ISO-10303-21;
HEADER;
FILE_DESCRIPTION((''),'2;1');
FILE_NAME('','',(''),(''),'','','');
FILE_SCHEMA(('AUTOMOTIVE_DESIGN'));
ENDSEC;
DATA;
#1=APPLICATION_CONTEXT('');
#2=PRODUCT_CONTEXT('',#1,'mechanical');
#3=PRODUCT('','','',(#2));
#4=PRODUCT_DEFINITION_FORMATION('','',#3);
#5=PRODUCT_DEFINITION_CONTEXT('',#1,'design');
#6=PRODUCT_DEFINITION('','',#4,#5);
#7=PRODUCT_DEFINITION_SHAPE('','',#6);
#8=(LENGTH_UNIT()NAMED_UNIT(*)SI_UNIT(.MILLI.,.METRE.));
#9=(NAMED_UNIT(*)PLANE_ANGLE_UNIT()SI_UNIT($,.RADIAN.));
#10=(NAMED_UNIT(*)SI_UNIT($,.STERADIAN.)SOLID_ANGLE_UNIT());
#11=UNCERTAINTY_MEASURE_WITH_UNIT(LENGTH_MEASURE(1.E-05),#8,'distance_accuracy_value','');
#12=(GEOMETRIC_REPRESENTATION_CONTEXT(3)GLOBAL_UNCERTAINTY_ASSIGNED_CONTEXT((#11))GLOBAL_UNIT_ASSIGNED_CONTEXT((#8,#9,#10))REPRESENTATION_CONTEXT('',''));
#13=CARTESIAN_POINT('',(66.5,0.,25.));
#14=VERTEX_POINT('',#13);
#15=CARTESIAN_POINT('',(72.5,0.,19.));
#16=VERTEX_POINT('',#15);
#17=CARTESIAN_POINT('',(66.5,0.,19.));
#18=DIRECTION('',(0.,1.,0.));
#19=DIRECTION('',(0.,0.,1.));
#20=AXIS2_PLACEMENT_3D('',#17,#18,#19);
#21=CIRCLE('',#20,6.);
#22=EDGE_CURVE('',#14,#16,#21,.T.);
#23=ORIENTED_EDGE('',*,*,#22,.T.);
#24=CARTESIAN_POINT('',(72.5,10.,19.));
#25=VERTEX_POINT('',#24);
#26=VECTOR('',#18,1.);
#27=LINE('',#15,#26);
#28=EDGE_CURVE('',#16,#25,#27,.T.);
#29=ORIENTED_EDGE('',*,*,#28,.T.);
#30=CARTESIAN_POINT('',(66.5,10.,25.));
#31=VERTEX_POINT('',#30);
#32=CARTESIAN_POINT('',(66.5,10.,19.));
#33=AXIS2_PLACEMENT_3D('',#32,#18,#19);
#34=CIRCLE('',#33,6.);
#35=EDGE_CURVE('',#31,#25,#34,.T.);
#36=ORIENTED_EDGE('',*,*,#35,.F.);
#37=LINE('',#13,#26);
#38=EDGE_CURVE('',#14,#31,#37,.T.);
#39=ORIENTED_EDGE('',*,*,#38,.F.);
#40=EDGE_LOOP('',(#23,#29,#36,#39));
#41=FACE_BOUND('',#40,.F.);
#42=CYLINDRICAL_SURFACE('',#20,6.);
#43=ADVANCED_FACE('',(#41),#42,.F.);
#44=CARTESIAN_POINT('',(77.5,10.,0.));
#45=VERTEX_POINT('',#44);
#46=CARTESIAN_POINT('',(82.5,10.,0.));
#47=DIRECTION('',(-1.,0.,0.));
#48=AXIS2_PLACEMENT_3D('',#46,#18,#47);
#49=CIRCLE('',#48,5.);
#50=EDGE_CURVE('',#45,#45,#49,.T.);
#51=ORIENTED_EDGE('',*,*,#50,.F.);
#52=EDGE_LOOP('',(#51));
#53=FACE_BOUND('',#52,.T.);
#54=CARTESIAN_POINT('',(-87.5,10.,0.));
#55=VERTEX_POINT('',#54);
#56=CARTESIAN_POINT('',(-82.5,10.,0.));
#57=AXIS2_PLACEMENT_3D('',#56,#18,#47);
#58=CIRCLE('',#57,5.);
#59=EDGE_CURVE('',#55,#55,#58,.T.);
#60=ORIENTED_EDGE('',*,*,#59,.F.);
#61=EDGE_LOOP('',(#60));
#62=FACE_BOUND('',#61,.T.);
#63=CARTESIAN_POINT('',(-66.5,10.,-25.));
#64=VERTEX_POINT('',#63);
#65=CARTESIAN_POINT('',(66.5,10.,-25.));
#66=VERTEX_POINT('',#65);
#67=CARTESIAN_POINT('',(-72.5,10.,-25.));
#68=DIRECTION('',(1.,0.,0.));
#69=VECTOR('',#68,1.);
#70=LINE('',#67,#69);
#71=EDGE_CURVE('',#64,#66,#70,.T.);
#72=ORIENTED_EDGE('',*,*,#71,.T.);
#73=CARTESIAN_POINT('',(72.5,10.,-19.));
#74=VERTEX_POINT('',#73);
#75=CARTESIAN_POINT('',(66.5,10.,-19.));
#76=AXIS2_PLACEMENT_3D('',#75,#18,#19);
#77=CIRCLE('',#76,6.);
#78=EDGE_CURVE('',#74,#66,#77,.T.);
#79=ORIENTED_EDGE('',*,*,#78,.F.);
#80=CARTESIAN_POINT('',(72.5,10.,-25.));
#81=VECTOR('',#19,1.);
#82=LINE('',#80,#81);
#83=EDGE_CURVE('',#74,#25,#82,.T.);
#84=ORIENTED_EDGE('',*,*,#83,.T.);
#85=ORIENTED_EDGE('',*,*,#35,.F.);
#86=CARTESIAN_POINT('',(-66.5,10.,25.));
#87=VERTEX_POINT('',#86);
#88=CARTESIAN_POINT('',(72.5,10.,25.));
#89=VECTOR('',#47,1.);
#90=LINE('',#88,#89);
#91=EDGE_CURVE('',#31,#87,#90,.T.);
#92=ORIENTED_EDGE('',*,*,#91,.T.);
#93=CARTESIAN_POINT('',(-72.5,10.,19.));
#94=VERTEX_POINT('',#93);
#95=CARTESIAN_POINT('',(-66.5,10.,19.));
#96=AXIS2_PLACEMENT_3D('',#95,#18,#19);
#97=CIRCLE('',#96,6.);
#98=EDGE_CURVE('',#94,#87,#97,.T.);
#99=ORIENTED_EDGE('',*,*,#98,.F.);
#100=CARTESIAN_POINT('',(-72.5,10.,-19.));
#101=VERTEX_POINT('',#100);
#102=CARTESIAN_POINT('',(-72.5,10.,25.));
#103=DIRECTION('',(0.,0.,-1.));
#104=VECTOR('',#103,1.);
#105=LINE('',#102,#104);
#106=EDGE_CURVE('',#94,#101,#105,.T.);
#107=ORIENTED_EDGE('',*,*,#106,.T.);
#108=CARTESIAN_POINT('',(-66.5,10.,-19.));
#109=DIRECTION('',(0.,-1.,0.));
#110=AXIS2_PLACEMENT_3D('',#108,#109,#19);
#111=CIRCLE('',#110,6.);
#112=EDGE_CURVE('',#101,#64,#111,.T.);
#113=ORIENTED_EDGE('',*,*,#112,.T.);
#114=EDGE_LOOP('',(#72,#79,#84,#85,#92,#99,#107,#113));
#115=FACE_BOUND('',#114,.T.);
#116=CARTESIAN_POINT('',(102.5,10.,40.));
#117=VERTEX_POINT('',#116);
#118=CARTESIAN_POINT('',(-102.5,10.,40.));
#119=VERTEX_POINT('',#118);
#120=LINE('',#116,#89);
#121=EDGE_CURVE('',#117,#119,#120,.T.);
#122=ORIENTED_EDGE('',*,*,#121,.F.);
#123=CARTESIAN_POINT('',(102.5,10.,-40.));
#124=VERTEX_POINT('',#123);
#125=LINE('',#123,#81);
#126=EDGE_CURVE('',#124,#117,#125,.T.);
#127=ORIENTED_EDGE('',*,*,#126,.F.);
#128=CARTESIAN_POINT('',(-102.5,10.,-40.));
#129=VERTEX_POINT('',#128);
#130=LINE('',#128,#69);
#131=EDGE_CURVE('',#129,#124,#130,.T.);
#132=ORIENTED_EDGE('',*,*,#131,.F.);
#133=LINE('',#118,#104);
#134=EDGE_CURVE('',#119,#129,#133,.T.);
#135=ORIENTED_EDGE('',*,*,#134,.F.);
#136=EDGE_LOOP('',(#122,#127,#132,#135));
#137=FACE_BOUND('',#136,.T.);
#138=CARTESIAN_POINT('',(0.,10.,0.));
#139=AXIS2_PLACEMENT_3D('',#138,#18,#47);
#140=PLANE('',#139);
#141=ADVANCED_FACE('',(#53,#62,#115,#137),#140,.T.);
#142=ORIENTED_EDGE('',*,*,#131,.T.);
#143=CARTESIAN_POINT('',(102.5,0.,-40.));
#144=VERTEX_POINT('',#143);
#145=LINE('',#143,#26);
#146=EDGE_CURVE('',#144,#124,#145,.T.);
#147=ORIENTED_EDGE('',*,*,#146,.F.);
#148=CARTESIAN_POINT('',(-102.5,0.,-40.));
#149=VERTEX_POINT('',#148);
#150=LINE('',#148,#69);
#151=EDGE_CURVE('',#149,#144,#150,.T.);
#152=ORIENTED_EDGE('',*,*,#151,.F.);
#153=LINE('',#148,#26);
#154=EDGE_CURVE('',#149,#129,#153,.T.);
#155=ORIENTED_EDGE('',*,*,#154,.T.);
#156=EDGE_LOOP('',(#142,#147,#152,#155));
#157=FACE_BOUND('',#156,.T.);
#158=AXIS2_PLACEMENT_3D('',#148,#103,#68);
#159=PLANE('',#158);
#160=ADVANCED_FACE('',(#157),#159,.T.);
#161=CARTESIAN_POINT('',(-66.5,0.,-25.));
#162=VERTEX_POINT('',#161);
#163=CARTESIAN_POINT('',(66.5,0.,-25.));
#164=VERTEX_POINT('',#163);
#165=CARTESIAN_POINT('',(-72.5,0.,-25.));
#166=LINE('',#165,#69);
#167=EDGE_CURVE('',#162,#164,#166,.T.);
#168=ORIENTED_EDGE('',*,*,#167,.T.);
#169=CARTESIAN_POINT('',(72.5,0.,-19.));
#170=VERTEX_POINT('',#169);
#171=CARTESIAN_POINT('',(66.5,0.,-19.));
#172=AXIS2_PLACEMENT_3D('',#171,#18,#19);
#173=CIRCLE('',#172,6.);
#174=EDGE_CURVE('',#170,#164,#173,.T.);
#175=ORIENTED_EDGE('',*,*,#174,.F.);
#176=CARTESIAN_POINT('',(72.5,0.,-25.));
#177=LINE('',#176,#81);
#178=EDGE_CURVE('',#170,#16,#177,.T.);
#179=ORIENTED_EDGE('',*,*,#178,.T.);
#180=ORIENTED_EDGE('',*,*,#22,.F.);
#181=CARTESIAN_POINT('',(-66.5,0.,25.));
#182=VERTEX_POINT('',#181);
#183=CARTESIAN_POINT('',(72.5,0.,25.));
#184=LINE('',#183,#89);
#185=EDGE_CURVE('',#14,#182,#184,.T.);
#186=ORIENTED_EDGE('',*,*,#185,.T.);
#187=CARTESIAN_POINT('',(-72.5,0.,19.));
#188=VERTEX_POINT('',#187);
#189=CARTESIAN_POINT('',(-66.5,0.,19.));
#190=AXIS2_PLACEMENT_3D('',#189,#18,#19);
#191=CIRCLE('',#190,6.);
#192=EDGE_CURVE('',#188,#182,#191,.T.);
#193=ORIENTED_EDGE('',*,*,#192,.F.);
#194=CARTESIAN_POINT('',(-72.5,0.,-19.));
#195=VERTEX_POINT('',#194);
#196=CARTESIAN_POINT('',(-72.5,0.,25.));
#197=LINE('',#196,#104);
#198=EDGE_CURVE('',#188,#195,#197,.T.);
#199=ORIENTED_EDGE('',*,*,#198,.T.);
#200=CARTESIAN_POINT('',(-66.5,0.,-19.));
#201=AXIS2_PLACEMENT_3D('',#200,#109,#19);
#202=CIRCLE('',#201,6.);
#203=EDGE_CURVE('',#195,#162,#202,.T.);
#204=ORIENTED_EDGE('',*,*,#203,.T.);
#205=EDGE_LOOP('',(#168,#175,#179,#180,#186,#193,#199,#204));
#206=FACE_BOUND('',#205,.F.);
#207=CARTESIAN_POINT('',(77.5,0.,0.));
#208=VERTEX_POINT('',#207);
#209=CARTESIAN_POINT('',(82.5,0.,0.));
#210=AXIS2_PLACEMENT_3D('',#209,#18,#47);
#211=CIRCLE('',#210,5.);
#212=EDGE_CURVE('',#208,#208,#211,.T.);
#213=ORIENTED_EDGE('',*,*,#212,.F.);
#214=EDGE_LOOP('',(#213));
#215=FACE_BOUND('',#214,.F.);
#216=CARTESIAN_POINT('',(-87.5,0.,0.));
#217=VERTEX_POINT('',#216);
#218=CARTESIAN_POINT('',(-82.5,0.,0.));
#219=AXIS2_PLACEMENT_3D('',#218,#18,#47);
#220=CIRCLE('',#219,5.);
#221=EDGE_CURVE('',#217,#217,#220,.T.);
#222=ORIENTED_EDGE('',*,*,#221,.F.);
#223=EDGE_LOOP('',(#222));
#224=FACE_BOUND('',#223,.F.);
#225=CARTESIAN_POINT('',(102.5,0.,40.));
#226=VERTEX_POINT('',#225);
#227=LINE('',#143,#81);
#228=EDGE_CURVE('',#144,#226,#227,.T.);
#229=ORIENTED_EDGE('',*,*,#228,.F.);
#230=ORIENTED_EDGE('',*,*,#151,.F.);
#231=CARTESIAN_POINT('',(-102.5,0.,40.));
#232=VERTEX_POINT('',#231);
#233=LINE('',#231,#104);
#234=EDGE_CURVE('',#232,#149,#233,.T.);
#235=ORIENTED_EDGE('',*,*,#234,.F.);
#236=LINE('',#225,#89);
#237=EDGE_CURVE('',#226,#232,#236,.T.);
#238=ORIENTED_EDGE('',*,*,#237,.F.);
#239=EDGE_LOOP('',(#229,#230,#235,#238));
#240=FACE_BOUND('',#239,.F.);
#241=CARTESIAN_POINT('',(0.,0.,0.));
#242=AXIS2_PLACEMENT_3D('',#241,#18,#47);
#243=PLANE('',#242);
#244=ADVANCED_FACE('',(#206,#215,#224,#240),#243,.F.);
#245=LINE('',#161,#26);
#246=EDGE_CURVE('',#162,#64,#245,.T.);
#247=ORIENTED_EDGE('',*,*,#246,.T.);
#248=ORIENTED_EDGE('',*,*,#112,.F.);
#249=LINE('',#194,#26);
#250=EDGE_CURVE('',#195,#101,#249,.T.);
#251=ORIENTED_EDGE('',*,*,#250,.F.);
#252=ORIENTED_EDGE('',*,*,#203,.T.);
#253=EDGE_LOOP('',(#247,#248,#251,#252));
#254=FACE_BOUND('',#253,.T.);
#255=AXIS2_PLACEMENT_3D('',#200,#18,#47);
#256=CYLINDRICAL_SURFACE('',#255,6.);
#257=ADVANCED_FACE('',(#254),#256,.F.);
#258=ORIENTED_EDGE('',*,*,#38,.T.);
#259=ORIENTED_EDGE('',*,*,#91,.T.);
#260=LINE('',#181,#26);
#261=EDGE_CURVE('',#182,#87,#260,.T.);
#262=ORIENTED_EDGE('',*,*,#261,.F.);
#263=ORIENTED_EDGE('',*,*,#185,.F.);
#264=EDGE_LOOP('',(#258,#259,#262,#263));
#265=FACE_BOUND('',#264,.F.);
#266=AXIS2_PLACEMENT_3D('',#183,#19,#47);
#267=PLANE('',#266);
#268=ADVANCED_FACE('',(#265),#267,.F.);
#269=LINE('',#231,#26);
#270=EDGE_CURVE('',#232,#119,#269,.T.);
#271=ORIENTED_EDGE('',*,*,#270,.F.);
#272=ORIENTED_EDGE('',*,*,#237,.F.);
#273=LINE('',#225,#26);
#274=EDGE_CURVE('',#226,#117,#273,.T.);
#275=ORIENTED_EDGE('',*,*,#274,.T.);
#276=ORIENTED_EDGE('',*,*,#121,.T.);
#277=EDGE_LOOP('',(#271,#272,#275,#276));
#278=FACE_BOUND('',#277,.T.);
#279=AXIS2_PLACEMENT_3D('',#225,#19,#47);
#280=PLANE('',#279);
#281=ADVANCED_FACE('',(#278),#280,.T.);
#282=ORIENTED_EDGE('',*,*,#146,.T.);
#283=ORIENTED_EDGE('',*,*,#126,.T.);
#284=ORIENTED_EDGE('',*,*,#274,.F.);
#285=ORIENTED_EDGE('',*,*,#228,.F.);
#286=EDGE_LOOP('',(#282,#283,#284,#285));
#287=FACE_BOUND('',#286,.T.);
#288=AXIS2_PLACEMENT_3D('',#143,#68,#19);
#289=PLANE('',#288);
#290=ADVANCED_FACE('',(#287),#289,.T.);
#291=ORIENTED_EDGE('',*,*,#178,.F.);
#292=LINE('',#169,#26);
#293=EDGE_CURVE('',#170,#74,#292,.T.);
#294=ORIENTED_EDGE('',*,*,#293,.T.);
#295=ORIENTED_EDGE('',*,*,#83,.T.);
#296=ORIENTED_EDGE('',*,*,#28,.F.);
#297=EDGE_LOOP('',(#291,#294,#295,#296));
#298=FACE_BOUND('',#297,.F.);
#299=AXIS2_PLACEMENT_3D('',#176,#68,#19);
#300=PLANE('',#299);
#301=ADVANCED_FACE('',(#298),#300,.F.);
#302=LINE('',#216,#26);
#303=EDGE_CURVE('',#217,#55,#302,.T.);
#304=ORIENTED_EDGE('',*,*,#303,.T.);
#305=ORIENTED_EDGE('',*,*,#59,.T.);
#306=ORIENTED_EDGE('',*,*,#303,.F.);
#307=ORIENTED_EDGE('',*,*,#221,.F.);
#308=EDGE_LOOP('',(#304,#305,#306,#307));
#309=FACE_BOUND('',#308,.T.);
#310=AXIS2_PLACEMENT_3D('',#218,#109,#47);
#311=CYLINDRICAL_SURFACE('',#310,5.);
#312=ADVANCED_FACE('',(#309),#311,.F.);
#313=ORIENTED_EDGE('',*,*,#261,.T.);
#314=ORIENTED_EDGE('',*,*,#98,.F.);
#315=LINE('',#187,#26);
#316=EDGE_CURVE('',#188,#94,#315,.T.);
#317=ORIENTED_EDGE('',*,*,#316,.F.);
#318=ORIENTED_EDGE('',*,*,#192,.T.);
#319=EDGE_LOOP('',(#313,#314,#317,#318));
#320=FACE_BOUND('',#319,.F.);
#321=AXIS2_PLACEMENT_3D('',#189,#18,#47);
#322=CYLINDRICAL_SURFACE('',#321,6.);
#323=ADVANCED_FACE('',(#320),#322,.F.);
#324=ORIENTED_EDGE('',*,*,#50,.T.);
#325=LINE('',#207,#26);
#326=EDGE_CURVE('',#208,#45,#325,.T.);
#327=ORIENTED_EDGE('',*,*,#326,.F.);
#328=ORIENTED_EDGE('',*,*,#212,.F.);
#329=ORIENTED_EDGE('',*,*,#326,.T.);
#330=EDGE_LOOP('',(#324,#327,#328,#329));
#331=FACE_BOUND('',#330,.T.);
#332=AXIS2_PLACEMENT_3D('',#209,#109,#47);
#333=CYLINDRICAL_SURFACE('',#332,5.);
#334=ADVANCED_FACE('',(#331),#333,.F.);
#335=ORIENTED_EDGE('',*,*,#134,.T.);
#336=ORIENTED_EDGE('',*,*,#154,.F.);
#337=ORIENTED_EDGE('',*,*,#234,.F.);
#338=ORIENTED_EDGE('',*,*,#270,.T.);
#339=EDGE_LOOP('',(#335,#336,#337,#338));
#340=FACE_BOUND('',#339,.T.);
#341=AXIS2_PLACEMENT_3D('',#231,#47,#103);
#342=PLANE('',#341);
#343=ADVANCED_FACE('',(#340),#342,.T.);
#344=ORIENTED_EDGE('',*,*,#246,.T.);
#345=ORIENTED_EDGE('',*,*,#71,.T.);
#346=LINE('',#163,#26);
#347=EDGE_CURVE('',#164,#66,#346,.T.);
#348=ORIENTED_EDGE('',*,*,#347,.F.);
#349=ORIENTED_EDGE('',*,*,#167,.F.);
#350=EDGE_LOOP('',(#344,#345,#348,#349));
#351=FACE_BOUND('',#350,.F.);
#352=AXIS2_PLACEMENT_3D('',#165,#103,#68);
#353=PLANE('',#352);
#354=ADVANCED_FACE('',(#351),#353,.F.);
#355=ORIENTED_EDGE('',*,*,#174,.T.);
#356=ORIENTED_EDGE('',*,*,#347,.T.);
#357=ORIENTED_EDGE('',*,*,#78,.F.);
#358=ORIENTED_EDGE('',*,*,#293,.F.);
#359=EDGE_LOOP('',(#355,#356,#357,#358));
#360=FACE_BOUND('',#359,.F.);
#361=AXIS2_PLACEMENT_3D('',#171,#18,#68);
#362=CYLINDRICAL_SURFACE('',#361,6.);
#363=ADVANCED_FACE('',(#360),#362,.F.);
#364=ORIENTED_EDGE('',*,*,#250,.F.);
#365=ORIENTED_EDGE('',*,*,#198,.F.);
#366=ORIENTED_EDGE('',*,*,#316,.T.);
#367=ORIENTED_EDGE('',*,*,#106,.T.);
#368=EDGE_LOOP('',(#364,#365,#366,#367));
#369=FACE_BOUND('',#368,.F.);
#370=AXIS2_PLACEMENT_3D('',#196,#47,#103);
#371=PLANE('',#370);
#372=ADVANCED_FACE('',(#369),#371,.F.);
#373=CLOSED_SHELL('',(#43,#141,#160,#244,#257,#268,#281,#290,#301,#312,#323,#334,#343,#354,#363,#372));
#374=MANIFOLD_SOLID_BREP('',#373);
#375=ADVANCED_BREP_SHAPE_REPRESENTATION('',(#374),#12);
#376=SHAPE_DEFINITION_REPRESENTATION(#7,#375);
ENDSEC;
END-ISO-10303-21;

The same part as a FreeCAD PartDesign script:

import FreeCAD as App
import Part
import Sketcher
from FreeCAD import Vector
Q = App.Units.Quantity


def edges_at(feature, points):
    """Names of the edges that pass closest to the given points."""
    edges = feature.Shape.Edges
    near = lambda p: min(range(len(edges)), key=lambda i: edges[i].distToShape(Part.Vertex(*p))[0])
    return sorted({f"Edge{near(p) + 1}" for p in points})


def add_polygon(sketch, points):
    """Adds a closed chain of lines whose ends are joined by coincident constraints."""
    first, n = sketch.GeometryCount, len(points)
    for a, b in zip(points, points[1:] + points[:1]):
        sketch.addGeometry(Part.LineSegment(App.Vector(*a, 0), App.Vector(*b, 0)), False)
    for i in range(n):
        sketch.addConstraint(Sketcher.Constraint("Coincident", first + i, 2, first + (i + 1) % n, 1))

doc = App.newDocument("Part")
body = doc.addObject("PartDesign::Body", "Body")

sketch1 = body.newObject("Sketcher::SketchObject", "Sketch")
sketch1.AttachmentSupport = (doc.getObject("XZ_Plane"), [""])
sketch1.MapMode = "FlatFace"
add_polygon(sketch1, [(102, -40), (-102, -40), (-102, 40), (102, 40)])
sketch1.addGeometry(Part.Circle(Vector(82, 0, 0), Vector(0, 0, 1), 5), False)
add_polygon(sketch1, [(-72, 25), (-72, -25), (72, -25), (72, 25)])
sketch1.addGeometry(Part.Circle(Vector(-82, 0, 0), Vector(0, 0, 1), 5), False)
sketch1.addConstraint([
    Sketcher.Constraint("Horizontal", 0),
    Sketcher.Constraint("Vertical", 1),
    Sketcher.Constraint("Horizontal", 2),
    Sketcher.Constraint("Vertical", 3),
    Sketcher.Constraint("Vertical", 5),
    Sketcher.Constraint("Horizontal", 6),
    Sketcher.Constraint("Vertical", 7),
    Sketcher.Constraint("Horizontal", 8),
    Sketcher.Constraint("Equal", 4, 9),
    Sketcher.Constraint("Symmetric", 4, 3, 9, 3, -1, 1),
    Sketcher.Constraint("Symmetric", 0, 2, 2, 2, -1, 1),
    Sketcher.Constraint("Symmetric", 5, 2, 7, 2, -1, 1),
    Sketcher.Constraint("PointOnObject", 4, 3, -1),
    Sketcher.Constraint("Diameter", 4, Q("10 mm")),
    Sketcher.Constraint("DistanceX", 0, 2, 0, 1, Q("205 mm")),
    Sketcher.Constraint("DistanceX", 6, 1, 6, 2, Q("145 mm")),
    Sketcher.Constraint("DistanceY", 1, 1, 1, 2, Q("80 mm")),
    Sketcher.Constraint("DistanceY", 5, 2, 5, 1, Q("50 mm")),
    Sketcher.Constraint("DistanceX", 9, 3, 4, 3, Q("165 mm")),
])
pad1 = body.newObject("PartDesign::Pad", "Pad")
pad1.Profile = sketch1
pad1.Length = 10
pad1.Reversed = True
doc.recompute()

fillet = body.newObject("PartDesign::Fillet", "Fillet")
fillet.Base = (pad1, edges_at(pad1, [
    (-72.5, 5, -25),
    (72.5, 5, -25),
    (72.5, 5, 25),
    (-72.5, 5, 25),
]))
fillet.Radius = 6

doc.recompute()
